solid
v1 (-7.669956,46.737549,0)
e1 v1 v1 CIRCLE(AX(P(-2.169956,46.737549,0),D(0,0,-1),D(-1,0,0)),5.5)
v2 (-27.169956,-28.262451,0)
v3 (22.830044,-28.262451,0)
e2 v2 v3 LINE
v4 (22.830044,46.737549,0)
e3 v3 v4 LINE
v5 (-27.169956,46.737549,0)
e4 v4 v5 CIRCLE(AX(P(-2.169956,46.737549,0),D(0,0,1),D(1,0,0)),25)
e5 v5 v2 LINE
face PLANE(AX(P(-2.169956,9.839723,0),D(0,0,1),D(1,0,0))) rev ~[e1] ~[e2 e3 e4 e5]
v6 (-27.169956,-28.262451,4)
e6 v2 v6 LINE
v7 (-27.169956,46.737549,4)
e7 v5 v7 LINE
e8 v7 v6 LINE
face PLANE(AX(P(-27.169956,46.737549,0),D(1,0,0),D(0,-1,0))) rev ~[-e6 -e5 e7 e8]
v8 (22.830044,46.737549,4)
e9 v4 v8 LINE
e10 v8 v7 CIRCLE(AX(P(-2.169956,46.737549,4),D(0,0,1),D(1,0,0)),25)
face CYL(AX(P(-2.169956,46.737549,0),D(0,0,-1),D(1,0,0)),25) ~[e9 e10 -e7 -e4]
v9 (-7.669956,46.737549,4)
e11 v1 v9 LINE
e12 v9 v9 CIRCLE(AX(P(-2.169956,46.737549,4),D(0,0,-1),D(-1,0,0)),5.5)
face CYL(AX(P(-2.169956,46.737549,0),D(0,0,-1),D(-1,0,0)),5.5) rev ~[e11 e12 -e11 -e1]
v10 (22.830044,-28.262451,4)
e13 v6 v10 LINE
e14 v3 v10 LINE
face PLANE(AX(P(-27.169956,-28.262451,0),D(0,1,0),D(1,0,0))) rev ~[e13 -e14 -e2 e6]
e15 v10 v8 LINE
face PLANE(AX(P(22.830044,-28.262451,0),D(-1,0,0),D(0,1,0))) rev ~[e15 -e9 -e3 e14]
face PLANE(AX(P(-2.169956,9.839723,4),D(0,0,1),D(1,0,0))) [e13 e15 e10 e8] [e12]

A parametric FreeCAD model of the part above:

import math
import FreeCAD as App
import Part
import Sketcher

V = App.Vector
Q = App.Units.Quantity

doc = App.newDocument("Part")
body = doc.addObject("PartDesign::Body", "Body")

sketch1 = doc.addObject("Sketcher::SketchObject", "Sketch")
body.addObject(sketch1)
sketch1.AttachmentSupport = (doc.XY_Plane, [""])
sketch1.MapMode = "FlatFace"
sketch1.addGeometry(Part.LineSegment(V(23, -28, 0), V(23, 47, 0)), False)
sketch1.addGeometry(Part.ArcOfCircle(Part.Circle(V(-2, 47, 0), V(0, 0, 1), 25), math.radians(0), math.radians(180)), False)
sketch1.addGeometry(Part.LineSegment(V(-27, 47, 0), V(-27, -28, 0)), False)
sketch1.addGeometry(Part.LineSegment(V(-27, -28, 0), V(23, -28, 0)), False)
sketch1.addGeometry(Part.Circle(V(-2, 47, 0), V(0, 0, 1), 6), False)
sketch1.addConstraint(Sketcher.Constraint("Tangent", 0, 2, 1, 1))
sketch1.addConstraint(Sketcher.Constraint("Tangent", 1, 2, 2, 1))
sketch1.addConstraint(Sketcher.Constraint("Coincident", 2, 2, 3, 1))
sketch1.addConstraint(Sketcher.Constraint("Coincident", 3, 2, 0, 1))
sketch1.addConstraint(Sketcher.Constraint("Vertical", 0))
sketch1.addConstraint(Sketcher.Constraint("Vertical", 2))
sketch1.addConstraint(Sketcher.Constraint("Horizontal", 3))
sketch1.addConstraint(Sketcher.Constraint("Coincident", 4, 3, 1, 3))
sketch1.addConstraint(Sketcher.Constraint("Diameter", 4, Q("11 mm")))
sketch1.addConstraint(Sketcher.Constraint("Radius", 1, Q("25 mm")))
sketch1.addConstraint(Sketcher.Constraint("DistanceY", 0, 1, 0, 2, Q("75 mm")))
sketch1.addConstraint(Sketcher.Constraint("DistanceY", -1, 1, 1, 3, Q("46.737549 mm")))
sketch1.addConstraint(Sketcher.Constraint("DistanceX", 1, 3, -1, 1, Q("2.169956 mm")))
pad1 = doc.addObject("PartDesign::Pad", "Pad")
body.addObject(pad1)
pad1.Profile = sketch1
pad1.Length = 4

doc.recompute()
